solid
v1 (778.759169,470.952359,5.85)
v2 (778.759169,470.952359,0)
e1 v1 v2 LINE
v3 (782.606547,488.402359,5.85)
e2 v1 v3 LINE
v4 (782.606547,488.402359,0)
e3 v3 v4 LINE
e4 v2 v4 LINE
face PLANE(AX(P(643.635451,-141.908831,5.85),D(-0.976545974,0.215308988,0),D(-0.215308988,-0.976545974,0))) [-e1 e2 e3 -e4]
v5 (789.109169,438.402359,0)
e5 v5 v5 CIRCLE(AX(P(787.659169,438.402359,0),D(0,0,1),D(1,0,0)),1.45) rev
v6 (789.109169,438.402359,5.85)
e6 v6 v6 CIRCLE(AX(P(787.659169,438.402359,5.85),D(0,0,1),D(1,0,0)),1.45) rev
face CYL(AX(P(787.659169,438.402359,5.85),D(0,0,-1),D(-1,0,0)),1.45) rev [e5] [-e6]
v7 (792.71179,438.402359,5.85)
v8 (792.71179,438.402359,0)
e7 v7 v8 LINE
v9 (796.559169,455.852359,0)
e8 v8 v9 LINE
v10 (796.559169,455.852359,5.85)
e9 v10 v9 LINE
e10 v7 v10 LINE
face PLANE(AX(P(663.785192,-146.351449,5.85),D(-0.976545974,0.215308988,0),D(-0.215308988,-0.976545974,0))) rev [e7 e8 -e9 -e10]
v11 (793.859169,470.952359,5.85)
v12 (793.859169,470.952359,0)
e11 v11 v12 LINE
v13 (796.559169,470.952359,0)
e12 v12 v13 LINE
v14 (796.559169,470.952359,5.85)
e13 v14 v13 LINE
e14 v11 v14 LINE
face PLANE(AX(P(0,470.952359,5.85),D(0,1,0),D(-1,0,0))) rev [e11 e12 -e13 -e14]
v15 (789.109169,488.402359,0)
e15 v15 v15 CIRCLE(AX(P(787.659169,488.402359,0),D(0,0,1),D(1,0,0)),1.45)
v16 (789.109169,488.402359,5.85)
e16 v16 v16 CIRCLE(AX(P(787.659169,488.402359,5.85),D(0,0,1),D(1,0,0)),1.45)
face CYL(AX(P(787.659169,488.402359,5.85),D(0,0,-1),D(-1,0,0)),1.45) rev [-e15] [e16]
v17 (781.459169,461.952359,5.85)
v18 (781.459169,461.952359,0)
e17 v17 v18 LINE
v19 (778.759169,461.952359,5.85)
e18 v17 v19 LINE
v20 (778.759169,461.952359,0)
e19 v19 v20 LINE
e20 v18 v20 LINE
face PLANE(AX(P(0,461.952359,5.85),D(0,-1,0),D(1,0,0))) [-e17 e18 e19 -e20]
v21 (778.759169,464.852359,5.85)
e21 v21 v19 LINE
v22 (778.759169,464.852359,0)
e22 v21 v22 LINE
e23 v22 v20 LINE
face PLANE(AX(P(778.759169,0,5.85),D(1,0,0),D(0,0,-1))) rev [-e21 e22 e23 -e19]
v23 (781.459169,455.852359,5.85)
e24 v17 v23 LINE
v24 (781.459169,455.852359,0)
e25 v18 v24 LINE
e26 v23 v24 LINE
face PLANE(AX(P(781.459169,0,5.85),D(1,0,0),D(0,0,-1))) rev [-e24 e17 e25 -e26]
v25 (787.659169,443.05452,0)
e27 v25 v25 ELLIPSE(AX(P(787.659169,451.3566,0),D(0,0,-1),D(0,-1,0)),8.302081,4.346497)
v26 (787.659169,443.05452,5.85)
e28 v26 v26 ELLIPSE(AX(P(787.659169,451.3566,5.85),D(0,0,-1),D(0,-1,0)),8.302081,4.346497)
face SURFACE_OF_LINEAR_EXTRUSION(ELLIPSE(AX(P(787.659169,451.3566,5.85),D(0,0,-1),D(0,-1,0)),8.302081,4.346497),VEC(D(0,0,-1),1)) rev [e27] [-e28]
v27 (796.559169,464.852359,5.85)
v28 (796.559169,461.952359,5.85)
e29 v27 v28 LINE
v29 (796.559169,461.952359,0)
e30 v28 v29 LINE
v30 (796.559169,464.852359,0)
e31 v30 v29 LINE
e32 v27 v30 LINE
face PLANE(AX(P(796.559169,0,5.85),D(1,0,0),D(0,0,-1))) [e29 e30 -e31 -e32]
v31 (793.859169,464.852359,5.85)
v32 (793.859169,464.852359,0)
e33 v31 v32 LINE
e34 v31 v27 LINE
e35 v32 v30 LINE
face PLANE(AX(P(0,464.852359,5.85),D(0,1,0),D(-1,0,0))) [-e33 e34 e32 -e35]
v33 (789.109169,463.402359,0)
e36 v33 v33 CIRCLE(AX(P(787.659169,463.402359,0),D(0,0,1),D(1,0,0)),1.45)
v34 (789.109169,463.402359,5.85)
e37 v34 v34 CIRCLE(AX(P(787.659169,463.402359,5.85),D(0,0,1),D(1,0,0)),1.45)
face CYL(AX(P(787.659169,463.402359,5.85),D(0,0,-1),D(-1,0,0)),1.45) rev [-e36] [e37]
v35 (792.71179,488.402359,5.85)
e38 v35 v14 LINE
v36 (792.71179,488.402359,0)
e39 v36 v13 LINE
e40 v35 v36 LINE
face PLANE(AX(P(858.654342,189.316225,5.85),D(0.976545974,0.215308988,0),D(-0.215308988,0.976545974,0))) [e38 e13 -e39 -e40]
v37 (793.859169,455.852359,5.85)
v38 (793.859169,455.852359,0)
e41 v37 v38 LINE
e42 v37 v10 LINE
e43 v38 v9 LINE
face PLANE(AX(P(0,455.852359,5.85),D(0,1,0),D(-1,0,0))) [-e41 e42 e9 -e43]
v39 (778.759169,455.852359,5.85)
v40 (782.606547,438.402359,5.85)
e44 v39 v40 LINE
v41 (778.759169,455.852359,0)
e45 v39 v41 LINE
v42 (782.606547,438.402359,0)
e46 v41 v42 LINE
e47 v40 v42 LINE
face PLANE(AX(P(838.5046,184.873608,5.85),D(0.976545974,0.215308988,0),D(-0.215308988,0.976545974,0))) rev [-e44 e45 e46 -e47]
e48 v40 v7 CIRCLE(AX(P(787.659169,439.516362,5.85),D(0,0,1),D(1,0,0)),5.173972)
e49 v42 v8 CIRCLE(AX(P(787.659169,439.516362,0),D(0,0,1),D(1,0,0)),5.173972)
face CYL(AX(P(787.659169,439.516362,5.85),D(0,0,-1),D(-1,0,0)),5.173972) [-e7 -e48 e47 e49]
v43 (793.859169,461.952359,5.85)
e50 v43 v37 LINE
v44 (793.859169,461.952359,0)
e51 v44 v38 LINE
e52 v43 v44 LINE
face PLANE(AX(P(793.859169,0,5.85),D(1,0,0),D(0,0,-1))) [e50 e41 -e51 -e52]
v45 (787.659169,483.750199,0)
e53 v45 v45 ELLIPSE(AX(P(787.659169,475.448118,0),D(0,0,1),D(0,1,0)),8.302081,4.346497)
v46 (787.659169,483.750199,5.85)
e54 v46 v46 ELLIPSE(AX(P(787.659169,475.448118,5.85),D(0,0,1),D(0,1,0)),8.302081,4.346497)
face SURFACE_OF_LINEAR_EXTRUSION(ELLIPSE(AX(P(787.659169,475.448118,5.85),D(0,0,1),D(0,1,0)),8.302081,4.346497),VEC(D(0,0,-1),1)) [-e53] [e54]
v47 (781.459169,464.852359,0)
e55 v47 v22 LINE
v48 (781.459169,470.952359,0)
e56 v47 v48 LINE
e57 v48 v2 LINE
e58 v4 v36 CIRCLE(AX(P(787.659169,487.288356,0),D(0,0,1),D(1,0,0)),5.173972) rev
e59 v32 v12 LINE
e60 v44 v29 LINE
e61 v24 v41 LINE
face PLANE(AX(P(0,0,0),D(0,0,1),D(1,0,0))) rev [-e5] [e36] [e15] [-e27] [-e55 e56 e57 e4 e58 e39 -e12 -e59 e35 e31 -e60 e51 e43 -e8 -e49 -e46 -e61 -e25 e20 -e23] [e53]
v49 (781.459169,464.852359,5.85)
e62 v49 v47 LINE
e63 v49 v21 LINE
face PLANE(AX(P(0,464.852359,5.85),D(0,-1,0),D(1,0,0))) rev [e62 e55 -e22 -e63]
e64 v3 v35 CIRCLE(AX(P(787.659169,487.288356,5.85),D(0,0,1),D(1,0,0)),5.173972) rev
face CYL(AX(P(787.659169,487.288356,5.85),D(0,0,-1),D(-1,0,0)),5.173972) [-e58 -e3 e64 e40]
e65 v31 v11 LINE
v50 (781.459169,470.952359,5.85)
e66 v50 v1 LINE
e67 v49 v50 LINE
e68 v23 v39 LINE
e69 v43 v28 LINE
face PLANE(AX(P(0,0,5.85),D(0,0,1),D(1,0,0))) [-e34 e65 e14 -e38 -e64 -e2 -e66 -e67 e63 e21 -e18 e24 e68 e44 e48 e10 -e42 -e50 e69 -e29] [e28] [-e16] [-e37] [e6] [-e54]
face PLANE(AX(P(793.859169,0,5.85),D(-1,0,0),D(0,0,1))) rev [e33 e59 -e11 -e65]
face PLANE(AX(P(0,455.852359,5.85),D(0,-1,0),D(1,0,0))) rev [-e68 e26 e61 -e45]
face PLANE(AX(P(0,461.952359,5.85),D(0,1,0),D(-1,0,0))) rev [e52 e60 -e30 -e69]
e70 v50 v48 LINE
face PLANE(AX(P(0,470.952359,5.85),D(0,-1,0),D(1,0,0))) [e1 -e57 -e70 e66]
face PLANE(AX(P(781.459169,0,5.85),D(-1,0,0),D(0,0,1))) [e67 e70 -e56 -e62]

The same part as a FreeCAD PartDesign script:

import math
import FreeCAD as App
import Part
import Sketcher

V = App.Vector
Q = App.Units.Quantity

doc = App.newDocument("Part")
params = doc.addObject("Spreadsheet::Sheet", "Params")
for row, (alias, value) in enumerate([
    ("sketch1_diameter", "2.9 mm"),
    ("sketch1_width", "2.7 mm"),
    ("sketch1_height", "2.9 mm"),
    ("sketch1_height2", "6.1 mm"),
    ("pad1_length", "5.85 mm"),
], start=1):
    params.set(f"A{row}", alias)
    params.set(f"B{row}", "=" + value)
    params.setAlias(f"B{row}", alias)

body = doc.addObject("PartDesign::Body", "Body")

sketch1 = doc.addObject("Sketcher::SketchObject", "Sketch")
body.addObject(sketch1)
sketch1.AttachmentSupport = (doc.XY_Plane, [""])
sketch1.MapMode = "FlatFace"
sketch1.addGeometry([
    Part.LineSegment(V(781.459169, 464.852359, 0), V(778.759169, 464.852359, 0)),
    Part.LineSegment(V(778.759169, 464.852359, 0), V(778.759169, 461.952359, 0)),
    Part.LineSegment(V(778.759169, 461.952359, 0), V(781.459169, 461.952359, 0)),
    Part.LineSegment(V(781.459169, 461.952359, 0), V(781.459169, 455.852359, 0)),
    Part.LineSegment(V(781.459169, 455.852359, 0), V(778.759169, 455.852359, 0)),
    Part.LineSegment(V(778.759169, 455.852359, 0), V(782.606547, 438.402359, 0)),
    Part.ArcOfCircle(Part.Circle(V(787.659169, 439.516362, 0), V(0, 0, 1), 5.173972), math.radians(-167.566344), math.radians(-12.433656)),
    Part.LineSegment(V(792.71179, 438.402359, 0), V(796.559169, 455.852359, 0)),
    Part.LineSegment(V(796.559169, 455.852359, 0), V(793.859169, 455.852359, 0)),
    Part.LineSegment(V(793.859169, 455.852359, 0), V(793.859169, 461.952359, 0)),
    Part.LineSegment(V(793.859169, 461.952359, 0), V(796.559169, 461.952359, 0)),
    Part.LineSegment(V(796.559169, 461.952359, 0), V(796.559169, 464.852359, 0)),
    Part.LineSegment(V(796.559169, 464.852359, 0), V(793.859169, 464.852359, 0)),
    Part.LineSegment(V(793.859169, 464.852359, 0), V(793.859169, 470.952359, 0)),
    Part.LineSegment(V(793.859169, 470.952359, 0), V(796.559169, 470.952359, 0)),
    Part.LineSegment(V(796.559169, 470.952359, 0), V(792.71179, 488.402359, 0)),
    Part.ArcOfCircle(Part.Circle(V(787.659169, 487.288356, 0), V(0, 0, 1), 5.173972), math.radians(12.433656), math.radians(167.566344)),
    Part.LineSegment(V(782.606547, 488.402359, 0), V(778.759169, 470.952359, 0)),
    Part.LineSegment(V(778.759169, 470.952359, 0), V(781.459169, 470.952359, 0)),
    Part.LineSegment(V(781.459169, 470.952359, 0), V(781.459169, 464.852359, 0)),
    Part.Circle(V(787.659169, 438.402359, 0), V(0, 0, 1), 1.45),
    Part.Ellipse(V(787.659169, 443.05452, 0), V(792.005666, 451.3566, 0), V(787.659169, 451.3566, 0)),
    Part.Circle(V(787.659169, 463.402359, 0), V(0, 0, 1), 1.45),
    Part.Ellipse(V(787.659169, 483.750199, 0), V(783.312671, 475.448118, 0), V(787.659169, 475.448118, 0)),
    Part.Circle(V(787.659169, 488.402359, 0), V(0, 0, 1), 1.45),
], False)
sketch1.addConstraint([
    Sketcher.Constraint("Block", 21),
    Sketcher.Constraint("Block", 23),
    Sketcher.Constraint("Coincident", 0, 2, 1, 1),
    Sketcher.Constraint("Coincident", 1, 2, 2, 1),
    Sketcher.Constraint("Coincident", 2, 2, 3, 1),
    Sketcher.Constraint("Coincident", 3, 2, 4, 1),
    Sketcher.Constraint("Coincident", 4, 2, 5, 1),
    Sketcher.Constraint("Tangent", 5, 2, 6, 1),
    Sketcher.Constraint("Tangent", 6, 2, 7, 1),
    Sketcher.Constraint("Coincident", 7, 2, 8, 1),
    Sketcher.Constraint("Coincident", 8, 2, 9, 1),
    Sketcher.Constraint("Coincident", 9, 2, 10, 1),
    Sketcher.Constraint("Coincident", 10, 2, 11, 1),
    Sketcher.Constraint("Coincident", 11, 2, 12, 1),
    Sketcher.Constraint("Coincident", 12, 2, 13, 1),
    Sketcher.Constraint("Coincident", 13, 2, 14, 1),
    Sketcher.Constraint("Coincident", 14, 2, 15, 1),
    Sketcher.Constraint("Tangent", 15, 2, 16, 1),
    Sketcher.Constraint("Tangent", 16, 2, 17, 1),
    Sketcher.Constraint("Coincident", 17, 2, 18, 1),
    Sketcher.Constraint("Coincident", 18, 2, 19, 1),
    Sketcher.Constraint("Coincident", 19, 2, 0, 1),
    Sketcher.Constraint("Horizontal", 0),
    Sketcher.Constraint("Vertical", 1),
    Sketcher.Constraint("Horizontal", 2),
    Sketcher.Constraint("Vertical", 3),
    Sketcher.Constraint("Horizontal", 4),
    Sketcher.Constraint("Horizontal", 8),
    Sketcher.Constraint("Vertical", 9),
    Sketcher.Constraint("Horizontal", 10),
    Sketcher.Constraint("Vertical", 11),
    Sketcher.Constraint("Horizontal", 12),
    Sketcher.Constraint("Vertical", 13),
    Sketcher.Constraint("Horizontal", 14),
    Sketcher.Constraint("Horizontal", 18),
    Sketcher.Constraint("Vertical", 19),
    Sketcher.Constraint("Equal", 6, 16),
    Sketcher.Constraint("Equal", 20, 22),
    Sketcher.Constraint("Equal", 22, 24),
    Sketcher.Constraint("Parallel", 5, 15),
    Sketcher.Constraint("Parallel", 7, 17),
    Sketcher.Constraint("Horizontal", 20, 3, 5, 2),
    Sketcher.Constraint("Horizontal", 5, 2, 6, 2),
    Sketcher.Constraint("Horizontal", 4, 2, 7, 2),
    Sketcher.Constraint("Horizontal", 2, 2, 9, 2),
    Sketcher.Constraint("Horizontal", 0, 2, 11, 2),
    Sketcher.Constraint("Horizontal", 24, 3, 15, 2),
    Sketcher.Constraint("Horizontal", 14, 2, 17, 2),
    Sketcher.Constraint("Vertical", 6, 3, 16, 3),
    Sketcher.Constraint("Vertical", 16, 3, 20, 3),
    Sketcher.Constraint("Vertical", 20, 3, 22, 3),
    Sketcher.Constraint("Vertical", 22, 3, 24, 3),
    Sketcher.Constraint("Vertical", 1, 2, 4, 2),
    Sketcher.Constraint("Vertical", 7, 2, 10, 2),
    Sketcher.Constraint("Vertical", 9, 2, 12, 2),
    Sketcher.Constraint("Vertical", 11, 2, 14, 2),
    Sketcher.Constraint("Vertical", 3, 2, 18, 2),
    Sketcher.Constraint("Equal", 4, 8),
    Sketcher.Constraint("Equal", 9, 13),
    Sketcher.Constraint("Diameter", 20, Q("2.9 mm")),
    Sketcher.Constraint("DistanceX", 0, 2, 0, 1, Q("2.7 mm")),
    Sketcher.Constraint("DistanceY", 1, 2, 1, 1, Q("2.9 mm")),
    Sketcher.Constraint("DistanceY", 3, 2, 3, 1, Q("6.1 mm")),
    Sketcher.Constraint("DistanceY", 20, 3, 22, 3, Q("25 mm")),
    Sketcher.Constraint("DistanceY", 22, 3, 24, 3, Q("25 mm")),
    Sketcher.Constraint("DistanceX", 0, 2, 22, 3, Q("8.9 mm")),
    Sketcher.Constraint("Radius", 6, Q("5.173972 mm")),
    Sketcher.Constraint("DistanceX", -1, 1, 6, 3, Q("787.659169 mm")),
    Sketcher.Constraint("DistanceY", -1, 1, 6, 3, Q("439.516362 mm")),
])
sketch1.setExpression("Constraints[59]", "Params.sketch1_diameter")
sketch1.setExpression("Constraints[60]", "Params.sketch1_width")
sketch1.setExpression("Constraints[61]", "Params.sketch1_height")
sketch1.setExpression("Constraints[62]", "Params.sketch1_height2")
pad1 = doc.addObject("PartDesign::Pad", "Pad")
body.addObject(pad1)
pad1.Profile = sketch1
pad1.setExpression("Length", "Params.pad1_length")

doc.recompute()
